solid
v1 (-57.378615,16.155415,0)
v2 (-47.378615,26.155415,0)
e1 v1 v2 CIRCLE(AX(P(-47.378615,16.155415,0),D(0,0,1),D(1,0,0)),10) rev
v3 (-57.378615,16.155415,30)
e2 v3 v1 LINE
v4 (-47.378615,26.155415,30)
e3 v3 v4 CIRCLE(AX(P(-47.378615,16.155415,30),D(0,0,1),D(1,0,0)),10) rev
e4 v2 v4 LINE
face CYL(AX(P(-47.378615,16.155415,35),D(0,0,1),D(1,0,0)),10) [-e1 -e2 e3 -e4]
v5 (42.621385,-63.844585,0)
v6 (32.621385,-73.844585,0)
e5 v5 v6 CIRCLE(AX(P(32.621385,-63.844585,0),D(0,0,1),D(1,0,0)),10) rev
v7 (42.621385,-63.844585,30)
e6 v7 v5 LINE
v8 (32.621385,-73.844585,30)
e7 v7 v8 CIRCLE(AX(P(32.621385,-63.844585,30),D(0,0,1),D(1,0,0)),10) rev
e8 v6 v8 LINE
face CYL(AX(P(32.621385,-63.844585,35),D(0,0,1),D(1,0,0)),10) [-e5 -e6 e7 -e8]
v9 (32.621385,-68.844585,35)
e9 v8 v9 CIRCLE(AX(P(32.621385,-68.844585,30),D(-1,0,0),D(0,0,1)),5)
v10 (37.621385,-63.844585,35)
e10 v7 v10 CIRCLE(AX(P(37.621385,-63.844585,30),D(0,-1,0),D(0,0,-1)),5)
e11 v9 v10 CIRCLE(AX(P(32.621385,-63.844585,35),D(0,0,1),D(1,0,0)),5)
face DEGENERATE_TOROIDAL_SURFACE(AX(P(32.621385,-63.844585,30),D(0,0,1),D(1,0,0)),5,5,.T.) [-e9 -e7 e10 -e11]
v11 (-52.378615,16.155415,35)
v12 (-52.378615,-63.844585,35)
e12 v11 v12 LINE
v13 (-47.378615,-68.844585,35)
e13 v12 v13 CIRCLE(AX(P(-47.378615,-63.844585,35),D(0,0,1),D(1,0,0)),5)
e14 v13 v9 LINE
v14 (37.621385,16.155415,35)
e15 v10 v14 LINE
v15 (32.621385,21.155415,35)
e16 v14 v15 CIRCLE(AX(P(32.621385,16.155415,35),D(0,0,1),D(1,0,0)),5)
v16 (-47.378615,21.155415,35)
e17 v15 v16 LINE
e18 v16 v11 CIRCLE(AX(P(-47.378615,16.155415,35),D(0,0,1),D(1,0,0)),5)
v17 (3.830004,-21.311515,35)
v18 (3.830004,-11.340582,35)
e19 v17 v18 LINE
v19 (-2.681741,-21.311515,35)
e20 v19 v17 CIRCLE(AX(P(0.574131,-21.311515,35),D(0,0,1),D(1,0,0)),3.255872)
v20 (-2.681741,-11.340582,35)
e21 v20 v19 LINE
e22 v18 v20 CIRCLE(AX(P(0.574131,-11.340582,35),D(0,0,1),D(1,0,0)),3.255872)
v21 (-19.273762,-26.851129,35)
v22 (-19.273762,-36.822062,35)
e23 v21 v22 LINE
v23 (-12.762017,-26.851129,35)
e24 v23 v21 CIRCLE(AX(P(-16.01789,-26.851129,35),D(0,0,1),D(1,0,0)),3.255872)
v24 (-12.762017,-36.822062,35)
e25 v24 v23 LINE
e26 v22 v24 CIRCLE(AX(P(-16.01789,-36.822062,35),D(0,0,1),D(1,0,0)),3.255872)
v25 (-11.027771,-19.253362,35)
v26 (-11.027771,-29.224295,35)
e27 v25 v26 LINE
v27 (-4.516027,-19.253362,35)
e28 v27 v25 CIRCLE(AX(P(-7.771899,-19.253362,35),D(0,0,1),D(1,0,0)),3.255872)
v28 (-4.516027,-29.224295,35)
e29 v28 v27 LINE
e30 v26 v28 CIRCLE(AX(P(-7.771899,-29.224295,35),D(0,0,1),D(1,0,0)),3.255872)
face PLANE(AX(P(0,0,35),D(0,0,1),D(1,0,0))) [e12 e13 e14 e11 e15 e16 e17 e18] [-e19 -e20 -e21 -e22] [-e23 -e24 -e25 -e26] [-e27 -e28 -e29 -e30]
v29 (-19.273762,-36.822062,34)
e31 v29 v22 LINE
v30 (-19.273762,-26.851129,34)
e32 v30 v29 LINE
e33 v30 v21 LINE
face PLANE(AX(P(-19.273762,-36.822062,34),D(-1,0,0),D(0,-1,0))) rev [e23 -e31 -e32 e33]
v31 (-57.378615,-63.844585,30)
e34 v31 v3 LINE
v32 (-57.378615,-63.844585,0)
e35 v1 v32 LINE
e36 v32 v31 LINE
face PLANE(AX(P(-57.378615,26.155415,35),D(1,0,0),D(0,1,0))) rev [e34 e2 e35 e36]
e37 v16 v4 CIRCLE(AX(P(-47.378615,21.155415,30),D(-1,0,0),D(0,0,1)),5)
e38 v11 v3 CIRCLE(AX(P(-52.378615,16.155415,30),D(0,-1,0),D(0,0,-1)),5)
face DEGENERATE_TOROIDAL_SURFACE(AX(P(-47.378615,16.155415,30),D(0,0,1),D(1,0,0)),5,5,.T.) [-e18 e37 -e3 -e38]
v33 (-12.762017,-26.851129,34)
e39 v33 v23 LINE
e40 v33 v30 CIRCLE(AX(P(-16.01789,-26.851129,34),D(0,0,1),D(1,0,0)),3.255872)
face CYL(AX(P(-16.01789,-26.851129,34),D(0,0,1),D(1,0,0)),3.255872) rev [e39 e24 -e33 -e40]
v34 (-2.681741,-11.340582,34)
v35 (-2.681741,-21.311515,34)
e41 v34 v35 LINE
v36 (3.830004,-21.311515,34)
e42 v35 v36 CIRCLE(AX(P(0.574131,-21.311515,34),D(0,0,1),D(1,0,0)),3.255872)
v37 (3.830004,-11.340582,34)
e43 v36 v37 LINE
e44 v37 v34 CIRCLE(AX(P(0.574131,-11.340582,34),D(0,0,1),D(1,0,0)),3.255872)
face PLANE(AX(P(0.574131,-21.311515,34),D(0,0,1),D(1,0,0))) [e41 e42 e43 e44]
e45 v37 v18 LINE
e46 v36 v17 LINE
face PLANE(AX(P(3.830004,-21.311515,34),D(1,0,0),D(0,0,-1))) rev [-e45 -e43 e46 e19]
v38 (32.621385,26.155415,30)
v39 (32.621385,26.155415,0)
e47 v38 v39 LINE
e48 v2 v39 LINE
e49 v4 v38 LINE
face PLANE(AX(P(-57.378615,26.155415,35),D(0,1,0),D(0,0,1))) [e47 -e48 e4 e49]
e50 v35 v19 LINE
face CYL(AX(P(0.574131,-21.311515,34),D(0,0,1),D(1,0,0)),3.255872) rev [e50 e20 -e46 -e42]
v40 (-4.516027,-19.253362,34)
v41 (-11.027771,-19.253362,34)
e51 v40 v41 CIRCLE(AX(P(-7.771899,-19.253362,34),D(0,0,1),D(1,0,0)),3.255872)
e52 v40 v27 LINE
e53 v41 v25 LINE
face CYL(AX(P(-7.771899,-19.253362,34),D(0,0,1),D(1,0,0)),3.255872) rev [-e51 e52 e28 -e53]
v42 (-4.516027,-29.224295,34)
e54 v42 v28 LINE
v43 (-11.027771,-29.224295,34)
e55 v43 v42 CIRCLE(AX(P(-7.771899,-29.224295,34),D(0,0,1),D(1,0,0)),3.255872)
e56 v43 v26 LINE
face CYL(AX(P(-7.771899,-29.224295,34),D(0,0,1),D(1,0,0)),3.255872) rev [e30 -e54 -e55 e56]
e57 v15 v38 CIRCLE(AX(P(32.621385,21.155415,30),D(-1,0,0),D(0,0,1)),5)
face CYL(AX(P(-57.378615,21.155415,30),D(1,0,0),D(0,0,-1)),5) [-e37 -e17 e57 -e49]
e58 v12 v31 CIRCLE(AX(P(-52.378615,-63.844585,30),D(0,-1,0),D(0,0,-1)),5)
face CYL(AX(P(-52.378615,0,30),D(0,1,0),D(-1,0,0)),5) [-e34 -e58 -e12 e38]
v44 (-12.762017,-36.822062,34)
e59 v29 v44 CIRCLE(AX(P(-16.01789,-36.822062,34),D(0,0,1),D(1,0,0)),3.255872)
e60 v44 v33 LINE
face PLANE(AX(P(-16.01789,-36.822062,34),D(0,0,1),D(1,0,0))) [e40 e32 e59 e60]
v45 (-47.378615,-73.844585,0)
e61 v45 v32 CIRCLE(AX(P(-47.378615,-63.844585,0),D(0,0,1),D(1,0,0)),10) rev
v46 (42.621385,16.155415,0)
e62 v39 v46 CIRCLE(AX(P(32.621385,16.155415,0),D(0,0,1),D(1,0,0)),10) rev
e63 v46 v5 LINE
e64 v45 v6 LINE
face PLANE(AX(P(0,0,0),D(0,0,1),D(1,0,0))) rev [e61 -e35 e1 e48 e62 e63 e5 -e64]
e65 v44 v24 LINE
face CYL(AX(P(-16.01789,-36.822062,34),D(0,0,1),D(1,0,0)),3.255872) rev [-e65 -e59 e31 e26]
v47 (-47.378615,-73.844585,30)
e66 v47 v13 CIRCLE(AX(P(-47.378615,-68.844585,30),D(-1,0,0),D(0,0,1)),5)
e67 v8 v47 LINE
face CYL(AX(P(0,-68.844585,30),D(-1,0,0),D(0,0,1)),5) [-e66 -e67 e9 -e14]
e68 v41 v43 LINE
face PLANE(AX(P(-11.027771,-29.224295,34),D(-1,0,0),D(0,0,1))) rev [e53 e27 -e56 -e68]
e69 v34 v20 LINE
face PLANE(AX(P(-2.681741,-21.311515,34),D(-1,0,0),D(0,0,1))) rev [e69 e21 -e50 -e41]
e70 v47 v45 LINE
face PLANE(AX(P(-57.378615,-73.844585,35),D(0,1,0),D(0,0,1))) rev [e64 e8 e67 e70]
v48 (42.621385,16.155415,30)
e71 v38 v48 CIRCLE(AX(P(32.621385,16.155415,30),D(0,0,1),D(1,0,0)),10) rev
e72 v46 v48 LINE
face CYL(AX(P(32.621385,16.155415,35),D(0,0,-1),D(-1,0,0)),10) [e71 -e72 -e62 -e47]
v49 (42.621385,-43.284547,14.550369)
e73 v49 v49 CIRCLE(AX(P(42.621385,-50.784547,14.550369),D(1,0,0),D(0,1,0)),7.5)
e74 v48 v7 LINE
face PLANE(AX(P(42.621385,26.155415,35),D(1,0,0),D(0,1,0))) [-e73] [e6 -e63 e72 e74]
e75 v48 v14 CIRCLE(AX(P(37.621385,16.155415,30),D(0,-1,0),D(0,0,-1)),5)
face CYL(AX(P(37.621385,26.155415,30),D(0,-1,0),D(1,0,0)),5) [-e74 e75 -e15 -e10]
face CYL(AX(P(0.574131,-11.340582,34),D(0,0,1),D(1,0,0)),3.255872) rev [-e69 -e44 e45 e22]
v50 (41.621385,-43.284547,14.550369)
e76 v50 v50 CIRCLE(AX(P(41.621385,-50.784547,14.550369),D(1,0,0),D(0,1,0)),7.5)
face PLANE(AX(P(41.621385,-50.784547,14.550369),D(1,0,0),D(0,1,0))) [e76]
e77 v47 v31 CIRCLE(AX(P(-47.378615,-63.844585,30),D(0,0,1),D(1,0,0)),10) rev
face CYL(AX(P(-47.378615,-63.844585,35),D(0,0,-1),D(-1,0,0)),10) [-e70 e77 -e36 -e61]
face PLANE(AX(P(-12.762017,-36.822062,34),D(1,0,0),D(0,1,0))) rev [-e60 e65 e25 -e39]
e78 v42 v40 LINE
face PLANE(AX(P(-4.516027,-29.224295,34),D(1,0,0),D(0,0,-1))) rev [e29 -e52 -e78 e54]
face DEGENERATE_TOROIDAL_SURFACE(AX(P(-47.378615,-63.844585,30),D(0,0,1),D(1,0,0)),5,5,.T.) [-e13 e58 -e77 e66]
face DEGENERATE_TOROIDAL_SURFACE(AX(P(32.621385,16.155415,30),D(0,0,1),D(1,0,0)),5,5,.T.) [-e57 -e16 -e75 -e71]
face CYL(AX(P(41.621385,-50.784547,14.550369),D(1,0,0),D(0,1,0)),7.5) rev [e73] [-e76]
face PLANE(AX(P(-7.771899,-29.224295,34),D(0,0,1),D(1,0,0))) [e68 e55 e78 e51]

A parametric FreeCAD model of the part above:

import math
import FreeCAD as App
import Part
import Sketcher
Q = App.Units.Quantity


def edges_at(feature, points):
    """Names of the edges that pass closest to the given points."""
    edges = feature.Shape.Edges
    near = lambda p: min(range(len(edges)), key=lambda i: edges[i].distToShape(Part.Vertex(*p))[0])
    return sorted({f"Edge{near(p) + 1}" for p in points})


def add_polygon(sketch, points):
    """Adds a closed chain of lines whose ends are joined by coincident constraints."""
    first, n = sketch.GeometryCount, len(points)
    for a, b in zip(points, points[1:] + points[:1]):
        sketch.addGeometry(Part.LineSegment(App.Vector(*a, 0), App.Vector(*b, 0)), False)
    for i in range(n):
        sketch.addConstraint(Sketcher.Constraint("Coincident", first + i, 2, first + (i + 1) % n, 1))

doc = App.newDocument("Part")
params = doc.addObject("Spreadsheet::Sheet", "Params")
for row, (alias, value) in enumerate([
    ("sketch1_width", "100 mm"),
    ("pad1_length", "35 mm"),
    ("fillet_radius", "10 mm"),
    ("fillet2_radius", "5 mm"),
    ("sketch2_diameter", "15 mm"),
    ("pocket1_length", "1 mm"),
    ("pocket2_length", "1 mm"),
], start=1):
    params.set(f"A{row}", alias)
    params.set(f"B{row}", "=" + value)
    params.setAlias(f"B{row}", alias)

body = doc.addObject("PartDesign::Body", "Body")

sketch1 = body.newObject("Sketcher::SketchObject", "Sketch")
sketch1.AttachmentSupport = (doc.getObject("XY_Plane"), [""])
sketch1.MapMode = "FlatFace"
add_polygon(sketch1, [(-57.378615, 26.155415), (-57.378615, -73.844585), (42.621385, -73.844585), (42.621385, 26.155415)])
sketch1.addConstraint([
    Sketcher.Constraint("Vertical", 0),
    Sketcher.Constraint("Horizontal", 1),
    Sketcher.Constraint("Vertical", 2),
    Sketcher.Constraint("Horizontal", 3),
    Sketcher.Constraint("Equal", 3, 0),
    Sketcher.Constraint("DistanceX", 1, 1, 1, 2, Q("100 mm")),
    Sketcher.Constraint("DistanceX", 0, 2, -1, 1, Q("57.378615 mm")),
    Sketcher.Constraint("DistanceY", 0, 2, -1, 1, Q("73.844585 mm")),
])
sketch1.setExpression("Constraints[9]", "Params.sketch1_width")
pad1 = body.newObject("PartDesign::Pad", "Pad")
pad1.Profile = sketch1
pad1.setExpression("Length", "Params.pad1_length")
doc.recompute()

fillet = body.newObject("PartDesign::Fillet", "Fillet")
fillet.Base = (pad1, edges_at(pad1, [
    (-57.379, 26.155, 17.5),
    (42.621, 26.155, 17.5),
    (42.621, -73.845, 17.5),
    (-57.379, -73.845, 17.5),
]))
fillet.setExpression("Radius", "Params.fillet_radius")
doc.recompute()

fillet2 = body.newObject("PartDesign::Fillet", "Fillet001")
fillet2.Base = (fillet, edges_at(fillet, [
    (42.621, -23.845, 35),
    (-7.379, -73.845, 35),
    (-57.379, -23.845, 35),
    (-7.379, 26.155, 35),
    (39.692, 23.226, 35),
    (-54.45, 23.226, 35),
    (-54.45, -70.916, 35),
    (39.692, -70.916, 35),
]))
fillet2.setExpression("Radius", "Params.fillet2_radius")

sketch2 = body.newObject("Sketcher::SketchObject", "Sketch001")
sketch2.AttachmentSupport = (doc.getObject("YZ_Plane"), [""])
sketch2.MapMode = "FlatFace"
sketch2.AttachmentOffset = App.Placement(App.Vector(0, 0, 42.621385), App.Rotation())
sketch2.addGeometry(Part.Circle(App.Vector(-50.784547, 14.550369, 0), App.Vector(0, 0, 1), 7.5), False)
sketch2.addConstraint([
    Sketcher.Constraint("Diameter", 0, Q("15 mm")),
    Sketcher.Constraint("DistanceY", -1, 1, 0, 3, Q("14.550369 mm")),
    Sketcher.Constraint("DistanceX", 0, 3, -1, 1, Q("50.784547 mm")),
])
sketch2.setExpression("Constraints[0]", "Params.sketch2_diameter")
pocket1 = body.newObject("PartDesign::Pocket", "Pocket")
pocket1.Profile = sketch2
pocket1.setExpression("Length", "Params.pocket1_length")

sketch3 = body.newObject("Sketcher::SketchObject", "Sketch002")
sketch3.AttachmentSupport = (doc.getObject("XY_Plane"), [""])
sketch3.MapMode = "FlatFace"
sketch3.AttachmentOffset = App.Placement(App.Vector(0, 0, 35), App.Rotation())
sketch3.addGeometry([
    Part.LineSegment(App.Vector(-19.273762, -26.851129, 0), App.Vector(-19.273762, -36.822062, 0)),
    Part.ArcOfCircle(Part.Circle(App.Vector(-16.01789, -36.822062, 0), App.Vector(0, 0, 1), 3.255872), math.radians(180), math.radians(360)),
    Part.LineSegment(App.Vector(-12.762017, -36.822062, 0), App.Vector(-12.762017, -26.851129, 0)),
    Part.ArcOfCircle(Part.Circle(App.Vector(-16.01789, -26.851129, 0), App.Vector(0, 0, 1), 3.255872), math.radians(0), math.radians(180)),
    Part.LineSegment(App.Vector(-11.027771, -19.253362, 0), App.Vector(-11.027771, -29.224295, 0)),
    Part.ArcOfCircle(Part.Circle(App.Vector(-7.771899, -29.224295, 0), App.Vector(0, 0, 1), 3.255872), math.radians(180), math.radians(360)),
    Part.LineSegment(App.Vector(-4.516027, -29.224295, 0), App.Vector(-4.516027, -19.253362, 0)),
    Part.ArcOfCircle(Part.Circle(App.Vector(-7.771899, -19.253362, 0), App.Vector(0, 0, 1), 3.255872), math.radians(0), math.radians(180)),
    Part.LineSegment(App.Vector(-2.681741, -11.340582, 0), App.Vector(-2.681741, -21.311515, 0)),
    Part.ArcOfCircle(Part.Circle(App.Vector(0.574131, -21.311515, 0), App.Vector(0, 0, 1), 3.255872), math.radians(180), math.radians(360)),
    Part.LineSegment(App.Vector(3.830004, -21.311515, 0), App.Vector(3.830004, -11.340582, 0)),
    Part.ArcOfCircle(Part.Circle(App.Vector(0.574131, -11.340582, 0), App.Vector(0, 0, 1), 3.255872), math.radians(0), math.radians(180)),
], False)
sketch3.addConstraint([
    Sketcher.Constraint("Tangent", 0, 2, 1, 1),
    Sketcher.Constraint("Tangent", 1, 2, 2, 1),
    Sketcher.Constraint("Tangent", 2, 2, 3, 1),
    Sketcher.Constraint("Tangent", 3, 2, 0, 1),
    Sketcher.Constraint("Tangent", 4, 2, 5, 1),
    Sketcher.Constraint("Tangent", 5, 2, 6, 1),
    Sketcher.Constraint("Tangent", 6, 2, 7, 1),
    Sketcher.Constraint("Tangent", 7, 2, 4, 1),
    Sketcher.Constraint("Tangent", 8, 2, 9, 1),
    Sketcher.Constraint("Tangent", 9, 2, 10, 1),
    Sketcher.Constraint("Tangent", 10, 2, 11, 1),
    Sketcher.Constraint("Tangent", 11, 2, 8, 1),
    Sketcher.Constraint("Vertical", 0),
    Sketcher.Constraint("Vertical", 2),
    Sketcher.Constraint("Vertical", 4),
    Sketcher.Constraint("Vertical", 6),
    Sketcher.Constraint("Vertical", 8),
    Sketcher.Constraint("Vertical", 10),
    Sketcher.Constraint("Equal", 3, 5),
    Sketcher.Constraint("Equal", 7, 9),
    Sketcher.Constraint("Equal", 2, 4),
    Sketcher.Constraint("Equal", 6, 8),
    Sketcher.Constraint("Radius", 1, Q("3.255872 mm")),
    Sketcher.Constraint("DistanceX", 5, 3, -1, 1, Q("7.771899 mm")),
    Sketcher.Constraint("DistanceY", 1, 3, 7, 3, Q("17.5687 mm")),
    Sketcher.Constraint("DistanceY", 0, 2, 0, 1, Q("9.970933 mm")),
    Sketcher.Constraint("DistanceX", 1, 3, -1, 1, Q("16.01789 mm")),
    Sketcher.Constraint("DistanceY", 1, 3, -1, 1, Q("36.822062 mm")),
    Sketcher.Constraint("DistanceX", -1, 1, 9, 3, Q("0.574131 mm")),
    Sketcher.Constraint("DistanceY", 11, 3, -1, 1, Q("11.340582 mm")),
])
pocket2 = body.newObject("PartDesign::Pocket", "Pocket001")
pocket2.Profile = sketch3
pocket2.setExpression("Length", "Params.pocket2_length")

doc.recompute()
